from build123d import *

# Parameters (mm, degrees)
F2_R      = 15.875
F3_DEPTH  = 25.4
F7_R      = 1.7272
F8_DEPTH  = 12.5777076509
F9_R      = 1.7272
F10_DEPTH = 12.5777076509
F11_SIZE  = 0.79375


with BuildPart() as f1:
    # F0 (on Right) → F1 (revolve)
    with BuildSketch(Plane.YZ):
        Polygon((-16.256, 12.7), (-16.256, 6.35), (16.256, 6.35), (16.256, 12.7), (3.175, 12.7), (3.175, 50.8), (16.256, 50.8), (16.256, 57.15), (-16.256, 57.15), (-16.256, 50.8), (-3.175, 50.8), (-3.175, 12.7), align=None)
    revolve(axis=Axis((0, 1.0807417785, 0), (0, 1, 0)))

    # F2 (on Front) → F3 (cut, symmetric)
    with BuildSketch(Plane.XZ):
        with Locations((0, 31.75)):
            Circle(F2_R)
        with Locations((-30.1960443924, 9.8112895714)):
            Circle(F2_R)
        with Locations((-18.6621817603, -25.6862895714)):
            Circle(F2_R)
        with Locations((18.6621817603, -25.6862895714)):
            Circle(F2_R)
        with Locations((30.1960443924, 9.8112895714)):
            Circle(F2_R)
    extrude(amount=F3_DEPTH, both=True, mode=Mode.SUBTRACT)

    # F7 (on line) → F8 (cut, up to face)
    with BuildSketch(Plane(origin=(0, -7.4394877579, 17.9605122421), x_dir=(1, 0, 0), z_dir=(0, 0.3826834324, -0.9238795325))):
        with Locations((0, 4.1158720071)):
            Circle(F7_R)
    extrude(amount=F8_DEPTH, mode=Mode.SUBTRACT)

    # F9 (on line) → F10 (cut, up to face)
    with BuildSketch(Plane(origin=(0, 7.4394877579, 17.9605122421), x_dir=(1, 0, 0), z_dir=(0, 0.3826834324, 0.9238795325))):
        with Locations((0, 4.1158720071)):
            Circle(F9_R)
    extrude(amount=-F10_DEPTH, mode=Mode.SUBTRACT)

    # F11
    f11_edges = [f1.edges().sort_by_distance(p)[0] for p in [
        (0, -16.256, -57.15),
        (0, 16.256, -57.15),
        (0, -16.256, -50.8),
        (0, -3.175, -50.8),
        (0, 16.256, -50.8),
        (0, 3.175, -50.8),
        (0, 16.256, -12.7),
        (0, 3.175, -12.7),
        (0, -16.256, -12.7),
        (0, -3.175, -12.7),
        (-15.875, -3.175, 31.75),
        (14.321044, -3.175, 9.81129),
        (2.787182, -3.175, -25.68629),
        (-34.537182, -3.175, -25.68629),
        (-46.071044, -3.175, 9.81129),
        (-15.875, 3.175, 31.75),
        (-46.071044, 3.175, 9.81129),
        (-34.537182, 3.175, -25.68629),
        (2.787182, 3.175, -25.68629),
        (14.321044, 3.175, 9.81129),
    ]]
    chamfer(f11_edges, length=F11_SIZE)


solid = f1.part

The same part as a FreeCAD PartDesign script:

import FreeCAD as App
import Part
import Sketcher

V = App.Vector
Q = App.Units.Quantity


def edges_at(feature, points):
    """Names of the edges that pass closest to the given points."""
    edges = feature.Shape.Edges
    near = lambda p: min(range(len(edges)), key=lambda i: edges[i].distToShape(Part.Vertex(*p))[0])
    return sorted({f"Edge{near(p) + 1}" for p in points})

doc = App.newDocument("Part")
body = doc.addObject("PartDesign::Body", "Body")

# Sketch on YZ plane
sketch1 = doc.addObject("Sketcher::SketchObject", "Sketch")
body.addObject(sketch1)
sketch1.AttachmentSupport = (doc.YZ_Plane, [""])
sketch1.MapMode = "FlatFace"
sketch1.addGeometry([
    Part.LineSegment(V(-16.256, 12.7, 0), V(-16.256, 6.35, 0)),  # 0
    Part.LineSegment(V(-16.256, 6.35, 0), V(16.256, 6.35, 0)),  # 1
    Part.LineSegment(V(16.256, 6.35, 0), V(16.256, 12.7, 0)),  # 2
    Part.LineSegment(V(16.256, 12.7, 0), V(3.175, 12.7, 0)),  # 3
    Part.LineSegment(V(3.175, 12.7, 0), V(3.175, 50.8, 0)),  # 4
    Part.LineSegment(V(3.175, 50.8, 0), V(16.256, 50.8, 0)),  # 5
    Part.LineSegment(V(16.256, 50.8, 0), V(16.256, 57.15, 0)),  # 6
    Part.LineSegment(V(16.256, 57.15, 0), V(-16.256, 57.15, 0)),  # 7
    Part.LineSegment(V(-16.256, 57.15, 0), V(-16.256, 50.8, 0)),  # 8
    Part.LineSegment(V(-16.256, 50.8, 0), V(-3.175, 50.8, 0)),  # 9
    Part.LineSegment(V(-3.175, 50.8, 0), V(-3.175, 12.7, 0)),  # 10
    Part.LineSegment(V(-3.175, 12.7, 0), V(-16.256, 12.7, 0)),  # 11
], False)
sketch1.addConstraint([
    Sketcher.Constraint("Coincident", 0, 2, 1, 1),
    Sketcher.Constraint("Coincident", 1, 2, 2, 1),
    Sketcher.Constraint("Coincident", 2, 2, 3, 1),
    Sketcher.Constraint("Coincident", 3, 2, 4, 1),
    Sketcher.Constraint("Coincident", 4, 2, 5, 1),
    Sketcher.Constraint("Coincident", 5, 2, 6, 1),
    Sketcher.Constraint("Coincident", 6, 2, 7, 1),
    Sketcher.Constraint("Coincident", 7, 2, 8, 1),
    Sketcher.Constraint("Coincident", 8, 2, 9, 1),
    Sketcher.Constraint("Coincident", 9, 2, 10, 1),
    Sketcher.Constraint("Coincident", 10, 2, 11, 1),
    Sketcher.Constraint("Coincident", 11, 2, 0, 1),
    Sketcher.Constraint("Vertical", 0),
    Sketcher.Constraint("Horizontal", 1),
    Sketcher.Constraint("Vertical", 2),
    Sketcher.Constraint("Horizontal", 3),
    Sketcher.Constraint("Vertical", 4),
    Sketcher.Constraint("Horizontal", 5),
    Sketcher.Constraint("Vertical", 6),
    Sketcher.Constraint("Horizontal", 7),
    Sketcher.Constraint("Vertical", 8),
    Sketcher.Constraint("Horizontal", 9),
    Sketcher.Constraint("Vertical", 10),
    Sketcher.Constraint("Horizontal", 11),
    Sketcher.Constraint("Symmetric", 5, 2, 8, 2, -2),
    Sketcher.Constraint("Symmetric", 3, 2, 10, 2, -2),
    Sketcher.Constraint("Vertical", 2, 2, 5, 2),
    Sketcher.Constraint("Vertical", 0, 2, 7, 2),
    Sketcher.Constraint("Equal", 2, 6),
    Sketcher.Constraint("DistanceY", 4, 1, 4, 2, Q("1.5 in")),
    Sketcher.Constraint("DistanceY", -1, 1, 4, 2, Q("2 in")),
    Sketcher.Constraint("DistanceY", 1, 2, 6, 2, Q("2 in")),
    Sketcher.Constraint("DistanceX", 1, 1, 1, 2, Q("1.28 in")),
    Sketcher.Constraint("DistanceX", 3, 2, 3, 1, Q("0.515 in")),
])
revolution = doc.addObject("PartDesign::Revolution", "Revolution")
body.addObject(revolution)
revolution.Profile = sketch1
revolution.ReferenceAxis = (sketch1, ["H_Axis"])
revolution.Angle = 360

# Sketch on XZ plane
sketch2 = doc.addObject("Sketcher::SketchObject", "Sketch001")
body.addObject(sketch2)
sketch2.AttachmentSupport = (doc.XZ_Plane, [""])
sketch2.MapMode = "FlatFace"
sketch2.addGeometry([
    Part.Circle(V(0, 31.75, 0), V(0, 0, 1), 15.875),  # 0
    Part.Circle(V(-30.196044, 9.81129, 0), V(0, 0, 1), 15.875),  # 1
    Part.Circle(V(-18.662182, -25.68629, 0), V(0, 0, 1), 15.875),  # 2
    Part.Circle(V(18.662182, -25.68629, 0), V(0, 0, 1), 15.875),  # 3
    Part.Circle(V(30.196044, 9.81129, 0), V(0, 0, 1), 15.875),  # 4
], False)
sketch2.addConstraint([
    Sketcher.Constraint("Equal", 0, 1),
    Sketcher.Constraint("Equal", 1, 2),
    Sketcher.Constraint("Equal", 2, 3),
    Sketcher.Constraint("Equal", 3, 4),
    Sketcher.Constraint("Symmetric", 2, 3, 3, 3, -2),
    Sketcher.Constraint("Symmetric", 1, 3, 4, 3, -2),
    Sketcher.Constraint("PointOnObject", 0, 3, -2),
    Sketcher.Constraint("Diameter", 0, Q("1.25 in")),
    Sketcher.Constraint("DistanceY", -1, 1, 0, 3, Q("1.25 in")),
    Sketcher.Constraint("DistanceY", -1, 1, 1, 3, 9.81129),
    Sketcher.Constraint("DistanceX", 2, 3, -1, 1, 18.662182),
    Sketcher.Constraint("DistanceY", 2, 3, -1, 1, 25.68629),
    Sketcher.Constraint("DistanceX", 1, 3, 4, 3, 60.392089),
])
pocket1 = doc.addObject("PartDesign::Pocket", "Pocket")
body.addObject(pocket1)
pocket1.Profile = sketch2
pocket1.Length = Q("2 in")
pocket1.Midplane = True

# Sketch on an angled plane
sketch3 = doc.addObject("Sketcher::SketchObject", "Sketch002")
body.addObject(sketch3)
sketch3.Placement = App.Placement(V(0, -7.439488, 17.960512), App.Rotation(V(1, 0, 0), V(0, -0.923879532, -0.382683432), V(0, 0.382683432, -0.923879532), "ZXY"))
sketch3.addGeometry(Part.Circle(V(0, 4.115872, 0), V(0, 0, 1), 1.7272), False)
sketch3.addConstraint([
    Sketcher.Constraint("PointOnObject", 0, 3, -2),
    Sketcher.Constraint("Diameter", 0, Q("0.136 in")),
    Sketcher.Constraint("DistanceY", -1, 1, 0, 3, 4.115872),
])
pocket2 = doc.addObject("PartDesign::Pocket", "Pocket001")
body.addObject(pocket2)
pocket2.Profile = sketch3
pocket2.Length = 12.577708
pocket2.Reversed = True

# Sketch on an angled plane
sketch4 = doc.addObject("Sketcher::SketchObject", "Sketch003")
body.addObject(sketch4)
sketch4.Placement = App.Placement(V(0, 7.439488, 17.960512), App.Rotation(V(1, 0, 0), V(0, 0.923879532, -0.382683432), V(0, 0.382683432, 0.923879532), "ZXY"))
sketch4.addGeometry(Part.Circle(V(0, 4.115872, 0), V(0, 0, 1), 1.7272), False)
sketch4.addConstraint([
    Sketcher.Constraint("PointOnObject", 0, 3, -2),
    Sketcher.Constraint("Diameter", 0, Q("0.136 in")),
    Sketcher.Constraint("DistanceY", -1, 1, 0, 3, 4.115872),
])
pocket3 = doc.addObject("PartDesign::Pocket", "Pocket002")
body.addObject(pocket3)
pocket3.Profile = sketch4
pocket3.Length = 12.577708
doc.recompute()

chamfer = doc.addObject("PartDesign::Chamfer", "Chamfer")
body.addObject(chamfer)
chamfer.Base = (pocket3, edges_at(pocket3, [
    (0, -16.256, -57.15),
    (0, 16.256, -57.15),
    (0, -16.256, -50.8),
    (0, -3.175, -50.8),
    (0, 16.256, -50.8),
    (0, 3.175, -50.8),
    (0, 16.256, -12.7),
    (0, 3.175, -12.7),
    (0, -16.256, -12.7),
    (0, -3.175, -12.7),
    (-15.875, -3.175, 31.75),
    (14.321, -3.175, 9.811),
    (2.787, -3.175, -25.686),
    (-34.537, -3.175, -25.686),
    (-46.071, -3.175, 9.811),
    (-15.875, 3.175, 31.75),
    (-46.071, 3.175, 9.811),
    (-34.537, 3.175, -25.686),
    (2.787, 3.175, -25.686),
    (14.321, 3.175, 9.811),
]))
chamfer.Size = Q("0.03125 in")

doc.recompute()
